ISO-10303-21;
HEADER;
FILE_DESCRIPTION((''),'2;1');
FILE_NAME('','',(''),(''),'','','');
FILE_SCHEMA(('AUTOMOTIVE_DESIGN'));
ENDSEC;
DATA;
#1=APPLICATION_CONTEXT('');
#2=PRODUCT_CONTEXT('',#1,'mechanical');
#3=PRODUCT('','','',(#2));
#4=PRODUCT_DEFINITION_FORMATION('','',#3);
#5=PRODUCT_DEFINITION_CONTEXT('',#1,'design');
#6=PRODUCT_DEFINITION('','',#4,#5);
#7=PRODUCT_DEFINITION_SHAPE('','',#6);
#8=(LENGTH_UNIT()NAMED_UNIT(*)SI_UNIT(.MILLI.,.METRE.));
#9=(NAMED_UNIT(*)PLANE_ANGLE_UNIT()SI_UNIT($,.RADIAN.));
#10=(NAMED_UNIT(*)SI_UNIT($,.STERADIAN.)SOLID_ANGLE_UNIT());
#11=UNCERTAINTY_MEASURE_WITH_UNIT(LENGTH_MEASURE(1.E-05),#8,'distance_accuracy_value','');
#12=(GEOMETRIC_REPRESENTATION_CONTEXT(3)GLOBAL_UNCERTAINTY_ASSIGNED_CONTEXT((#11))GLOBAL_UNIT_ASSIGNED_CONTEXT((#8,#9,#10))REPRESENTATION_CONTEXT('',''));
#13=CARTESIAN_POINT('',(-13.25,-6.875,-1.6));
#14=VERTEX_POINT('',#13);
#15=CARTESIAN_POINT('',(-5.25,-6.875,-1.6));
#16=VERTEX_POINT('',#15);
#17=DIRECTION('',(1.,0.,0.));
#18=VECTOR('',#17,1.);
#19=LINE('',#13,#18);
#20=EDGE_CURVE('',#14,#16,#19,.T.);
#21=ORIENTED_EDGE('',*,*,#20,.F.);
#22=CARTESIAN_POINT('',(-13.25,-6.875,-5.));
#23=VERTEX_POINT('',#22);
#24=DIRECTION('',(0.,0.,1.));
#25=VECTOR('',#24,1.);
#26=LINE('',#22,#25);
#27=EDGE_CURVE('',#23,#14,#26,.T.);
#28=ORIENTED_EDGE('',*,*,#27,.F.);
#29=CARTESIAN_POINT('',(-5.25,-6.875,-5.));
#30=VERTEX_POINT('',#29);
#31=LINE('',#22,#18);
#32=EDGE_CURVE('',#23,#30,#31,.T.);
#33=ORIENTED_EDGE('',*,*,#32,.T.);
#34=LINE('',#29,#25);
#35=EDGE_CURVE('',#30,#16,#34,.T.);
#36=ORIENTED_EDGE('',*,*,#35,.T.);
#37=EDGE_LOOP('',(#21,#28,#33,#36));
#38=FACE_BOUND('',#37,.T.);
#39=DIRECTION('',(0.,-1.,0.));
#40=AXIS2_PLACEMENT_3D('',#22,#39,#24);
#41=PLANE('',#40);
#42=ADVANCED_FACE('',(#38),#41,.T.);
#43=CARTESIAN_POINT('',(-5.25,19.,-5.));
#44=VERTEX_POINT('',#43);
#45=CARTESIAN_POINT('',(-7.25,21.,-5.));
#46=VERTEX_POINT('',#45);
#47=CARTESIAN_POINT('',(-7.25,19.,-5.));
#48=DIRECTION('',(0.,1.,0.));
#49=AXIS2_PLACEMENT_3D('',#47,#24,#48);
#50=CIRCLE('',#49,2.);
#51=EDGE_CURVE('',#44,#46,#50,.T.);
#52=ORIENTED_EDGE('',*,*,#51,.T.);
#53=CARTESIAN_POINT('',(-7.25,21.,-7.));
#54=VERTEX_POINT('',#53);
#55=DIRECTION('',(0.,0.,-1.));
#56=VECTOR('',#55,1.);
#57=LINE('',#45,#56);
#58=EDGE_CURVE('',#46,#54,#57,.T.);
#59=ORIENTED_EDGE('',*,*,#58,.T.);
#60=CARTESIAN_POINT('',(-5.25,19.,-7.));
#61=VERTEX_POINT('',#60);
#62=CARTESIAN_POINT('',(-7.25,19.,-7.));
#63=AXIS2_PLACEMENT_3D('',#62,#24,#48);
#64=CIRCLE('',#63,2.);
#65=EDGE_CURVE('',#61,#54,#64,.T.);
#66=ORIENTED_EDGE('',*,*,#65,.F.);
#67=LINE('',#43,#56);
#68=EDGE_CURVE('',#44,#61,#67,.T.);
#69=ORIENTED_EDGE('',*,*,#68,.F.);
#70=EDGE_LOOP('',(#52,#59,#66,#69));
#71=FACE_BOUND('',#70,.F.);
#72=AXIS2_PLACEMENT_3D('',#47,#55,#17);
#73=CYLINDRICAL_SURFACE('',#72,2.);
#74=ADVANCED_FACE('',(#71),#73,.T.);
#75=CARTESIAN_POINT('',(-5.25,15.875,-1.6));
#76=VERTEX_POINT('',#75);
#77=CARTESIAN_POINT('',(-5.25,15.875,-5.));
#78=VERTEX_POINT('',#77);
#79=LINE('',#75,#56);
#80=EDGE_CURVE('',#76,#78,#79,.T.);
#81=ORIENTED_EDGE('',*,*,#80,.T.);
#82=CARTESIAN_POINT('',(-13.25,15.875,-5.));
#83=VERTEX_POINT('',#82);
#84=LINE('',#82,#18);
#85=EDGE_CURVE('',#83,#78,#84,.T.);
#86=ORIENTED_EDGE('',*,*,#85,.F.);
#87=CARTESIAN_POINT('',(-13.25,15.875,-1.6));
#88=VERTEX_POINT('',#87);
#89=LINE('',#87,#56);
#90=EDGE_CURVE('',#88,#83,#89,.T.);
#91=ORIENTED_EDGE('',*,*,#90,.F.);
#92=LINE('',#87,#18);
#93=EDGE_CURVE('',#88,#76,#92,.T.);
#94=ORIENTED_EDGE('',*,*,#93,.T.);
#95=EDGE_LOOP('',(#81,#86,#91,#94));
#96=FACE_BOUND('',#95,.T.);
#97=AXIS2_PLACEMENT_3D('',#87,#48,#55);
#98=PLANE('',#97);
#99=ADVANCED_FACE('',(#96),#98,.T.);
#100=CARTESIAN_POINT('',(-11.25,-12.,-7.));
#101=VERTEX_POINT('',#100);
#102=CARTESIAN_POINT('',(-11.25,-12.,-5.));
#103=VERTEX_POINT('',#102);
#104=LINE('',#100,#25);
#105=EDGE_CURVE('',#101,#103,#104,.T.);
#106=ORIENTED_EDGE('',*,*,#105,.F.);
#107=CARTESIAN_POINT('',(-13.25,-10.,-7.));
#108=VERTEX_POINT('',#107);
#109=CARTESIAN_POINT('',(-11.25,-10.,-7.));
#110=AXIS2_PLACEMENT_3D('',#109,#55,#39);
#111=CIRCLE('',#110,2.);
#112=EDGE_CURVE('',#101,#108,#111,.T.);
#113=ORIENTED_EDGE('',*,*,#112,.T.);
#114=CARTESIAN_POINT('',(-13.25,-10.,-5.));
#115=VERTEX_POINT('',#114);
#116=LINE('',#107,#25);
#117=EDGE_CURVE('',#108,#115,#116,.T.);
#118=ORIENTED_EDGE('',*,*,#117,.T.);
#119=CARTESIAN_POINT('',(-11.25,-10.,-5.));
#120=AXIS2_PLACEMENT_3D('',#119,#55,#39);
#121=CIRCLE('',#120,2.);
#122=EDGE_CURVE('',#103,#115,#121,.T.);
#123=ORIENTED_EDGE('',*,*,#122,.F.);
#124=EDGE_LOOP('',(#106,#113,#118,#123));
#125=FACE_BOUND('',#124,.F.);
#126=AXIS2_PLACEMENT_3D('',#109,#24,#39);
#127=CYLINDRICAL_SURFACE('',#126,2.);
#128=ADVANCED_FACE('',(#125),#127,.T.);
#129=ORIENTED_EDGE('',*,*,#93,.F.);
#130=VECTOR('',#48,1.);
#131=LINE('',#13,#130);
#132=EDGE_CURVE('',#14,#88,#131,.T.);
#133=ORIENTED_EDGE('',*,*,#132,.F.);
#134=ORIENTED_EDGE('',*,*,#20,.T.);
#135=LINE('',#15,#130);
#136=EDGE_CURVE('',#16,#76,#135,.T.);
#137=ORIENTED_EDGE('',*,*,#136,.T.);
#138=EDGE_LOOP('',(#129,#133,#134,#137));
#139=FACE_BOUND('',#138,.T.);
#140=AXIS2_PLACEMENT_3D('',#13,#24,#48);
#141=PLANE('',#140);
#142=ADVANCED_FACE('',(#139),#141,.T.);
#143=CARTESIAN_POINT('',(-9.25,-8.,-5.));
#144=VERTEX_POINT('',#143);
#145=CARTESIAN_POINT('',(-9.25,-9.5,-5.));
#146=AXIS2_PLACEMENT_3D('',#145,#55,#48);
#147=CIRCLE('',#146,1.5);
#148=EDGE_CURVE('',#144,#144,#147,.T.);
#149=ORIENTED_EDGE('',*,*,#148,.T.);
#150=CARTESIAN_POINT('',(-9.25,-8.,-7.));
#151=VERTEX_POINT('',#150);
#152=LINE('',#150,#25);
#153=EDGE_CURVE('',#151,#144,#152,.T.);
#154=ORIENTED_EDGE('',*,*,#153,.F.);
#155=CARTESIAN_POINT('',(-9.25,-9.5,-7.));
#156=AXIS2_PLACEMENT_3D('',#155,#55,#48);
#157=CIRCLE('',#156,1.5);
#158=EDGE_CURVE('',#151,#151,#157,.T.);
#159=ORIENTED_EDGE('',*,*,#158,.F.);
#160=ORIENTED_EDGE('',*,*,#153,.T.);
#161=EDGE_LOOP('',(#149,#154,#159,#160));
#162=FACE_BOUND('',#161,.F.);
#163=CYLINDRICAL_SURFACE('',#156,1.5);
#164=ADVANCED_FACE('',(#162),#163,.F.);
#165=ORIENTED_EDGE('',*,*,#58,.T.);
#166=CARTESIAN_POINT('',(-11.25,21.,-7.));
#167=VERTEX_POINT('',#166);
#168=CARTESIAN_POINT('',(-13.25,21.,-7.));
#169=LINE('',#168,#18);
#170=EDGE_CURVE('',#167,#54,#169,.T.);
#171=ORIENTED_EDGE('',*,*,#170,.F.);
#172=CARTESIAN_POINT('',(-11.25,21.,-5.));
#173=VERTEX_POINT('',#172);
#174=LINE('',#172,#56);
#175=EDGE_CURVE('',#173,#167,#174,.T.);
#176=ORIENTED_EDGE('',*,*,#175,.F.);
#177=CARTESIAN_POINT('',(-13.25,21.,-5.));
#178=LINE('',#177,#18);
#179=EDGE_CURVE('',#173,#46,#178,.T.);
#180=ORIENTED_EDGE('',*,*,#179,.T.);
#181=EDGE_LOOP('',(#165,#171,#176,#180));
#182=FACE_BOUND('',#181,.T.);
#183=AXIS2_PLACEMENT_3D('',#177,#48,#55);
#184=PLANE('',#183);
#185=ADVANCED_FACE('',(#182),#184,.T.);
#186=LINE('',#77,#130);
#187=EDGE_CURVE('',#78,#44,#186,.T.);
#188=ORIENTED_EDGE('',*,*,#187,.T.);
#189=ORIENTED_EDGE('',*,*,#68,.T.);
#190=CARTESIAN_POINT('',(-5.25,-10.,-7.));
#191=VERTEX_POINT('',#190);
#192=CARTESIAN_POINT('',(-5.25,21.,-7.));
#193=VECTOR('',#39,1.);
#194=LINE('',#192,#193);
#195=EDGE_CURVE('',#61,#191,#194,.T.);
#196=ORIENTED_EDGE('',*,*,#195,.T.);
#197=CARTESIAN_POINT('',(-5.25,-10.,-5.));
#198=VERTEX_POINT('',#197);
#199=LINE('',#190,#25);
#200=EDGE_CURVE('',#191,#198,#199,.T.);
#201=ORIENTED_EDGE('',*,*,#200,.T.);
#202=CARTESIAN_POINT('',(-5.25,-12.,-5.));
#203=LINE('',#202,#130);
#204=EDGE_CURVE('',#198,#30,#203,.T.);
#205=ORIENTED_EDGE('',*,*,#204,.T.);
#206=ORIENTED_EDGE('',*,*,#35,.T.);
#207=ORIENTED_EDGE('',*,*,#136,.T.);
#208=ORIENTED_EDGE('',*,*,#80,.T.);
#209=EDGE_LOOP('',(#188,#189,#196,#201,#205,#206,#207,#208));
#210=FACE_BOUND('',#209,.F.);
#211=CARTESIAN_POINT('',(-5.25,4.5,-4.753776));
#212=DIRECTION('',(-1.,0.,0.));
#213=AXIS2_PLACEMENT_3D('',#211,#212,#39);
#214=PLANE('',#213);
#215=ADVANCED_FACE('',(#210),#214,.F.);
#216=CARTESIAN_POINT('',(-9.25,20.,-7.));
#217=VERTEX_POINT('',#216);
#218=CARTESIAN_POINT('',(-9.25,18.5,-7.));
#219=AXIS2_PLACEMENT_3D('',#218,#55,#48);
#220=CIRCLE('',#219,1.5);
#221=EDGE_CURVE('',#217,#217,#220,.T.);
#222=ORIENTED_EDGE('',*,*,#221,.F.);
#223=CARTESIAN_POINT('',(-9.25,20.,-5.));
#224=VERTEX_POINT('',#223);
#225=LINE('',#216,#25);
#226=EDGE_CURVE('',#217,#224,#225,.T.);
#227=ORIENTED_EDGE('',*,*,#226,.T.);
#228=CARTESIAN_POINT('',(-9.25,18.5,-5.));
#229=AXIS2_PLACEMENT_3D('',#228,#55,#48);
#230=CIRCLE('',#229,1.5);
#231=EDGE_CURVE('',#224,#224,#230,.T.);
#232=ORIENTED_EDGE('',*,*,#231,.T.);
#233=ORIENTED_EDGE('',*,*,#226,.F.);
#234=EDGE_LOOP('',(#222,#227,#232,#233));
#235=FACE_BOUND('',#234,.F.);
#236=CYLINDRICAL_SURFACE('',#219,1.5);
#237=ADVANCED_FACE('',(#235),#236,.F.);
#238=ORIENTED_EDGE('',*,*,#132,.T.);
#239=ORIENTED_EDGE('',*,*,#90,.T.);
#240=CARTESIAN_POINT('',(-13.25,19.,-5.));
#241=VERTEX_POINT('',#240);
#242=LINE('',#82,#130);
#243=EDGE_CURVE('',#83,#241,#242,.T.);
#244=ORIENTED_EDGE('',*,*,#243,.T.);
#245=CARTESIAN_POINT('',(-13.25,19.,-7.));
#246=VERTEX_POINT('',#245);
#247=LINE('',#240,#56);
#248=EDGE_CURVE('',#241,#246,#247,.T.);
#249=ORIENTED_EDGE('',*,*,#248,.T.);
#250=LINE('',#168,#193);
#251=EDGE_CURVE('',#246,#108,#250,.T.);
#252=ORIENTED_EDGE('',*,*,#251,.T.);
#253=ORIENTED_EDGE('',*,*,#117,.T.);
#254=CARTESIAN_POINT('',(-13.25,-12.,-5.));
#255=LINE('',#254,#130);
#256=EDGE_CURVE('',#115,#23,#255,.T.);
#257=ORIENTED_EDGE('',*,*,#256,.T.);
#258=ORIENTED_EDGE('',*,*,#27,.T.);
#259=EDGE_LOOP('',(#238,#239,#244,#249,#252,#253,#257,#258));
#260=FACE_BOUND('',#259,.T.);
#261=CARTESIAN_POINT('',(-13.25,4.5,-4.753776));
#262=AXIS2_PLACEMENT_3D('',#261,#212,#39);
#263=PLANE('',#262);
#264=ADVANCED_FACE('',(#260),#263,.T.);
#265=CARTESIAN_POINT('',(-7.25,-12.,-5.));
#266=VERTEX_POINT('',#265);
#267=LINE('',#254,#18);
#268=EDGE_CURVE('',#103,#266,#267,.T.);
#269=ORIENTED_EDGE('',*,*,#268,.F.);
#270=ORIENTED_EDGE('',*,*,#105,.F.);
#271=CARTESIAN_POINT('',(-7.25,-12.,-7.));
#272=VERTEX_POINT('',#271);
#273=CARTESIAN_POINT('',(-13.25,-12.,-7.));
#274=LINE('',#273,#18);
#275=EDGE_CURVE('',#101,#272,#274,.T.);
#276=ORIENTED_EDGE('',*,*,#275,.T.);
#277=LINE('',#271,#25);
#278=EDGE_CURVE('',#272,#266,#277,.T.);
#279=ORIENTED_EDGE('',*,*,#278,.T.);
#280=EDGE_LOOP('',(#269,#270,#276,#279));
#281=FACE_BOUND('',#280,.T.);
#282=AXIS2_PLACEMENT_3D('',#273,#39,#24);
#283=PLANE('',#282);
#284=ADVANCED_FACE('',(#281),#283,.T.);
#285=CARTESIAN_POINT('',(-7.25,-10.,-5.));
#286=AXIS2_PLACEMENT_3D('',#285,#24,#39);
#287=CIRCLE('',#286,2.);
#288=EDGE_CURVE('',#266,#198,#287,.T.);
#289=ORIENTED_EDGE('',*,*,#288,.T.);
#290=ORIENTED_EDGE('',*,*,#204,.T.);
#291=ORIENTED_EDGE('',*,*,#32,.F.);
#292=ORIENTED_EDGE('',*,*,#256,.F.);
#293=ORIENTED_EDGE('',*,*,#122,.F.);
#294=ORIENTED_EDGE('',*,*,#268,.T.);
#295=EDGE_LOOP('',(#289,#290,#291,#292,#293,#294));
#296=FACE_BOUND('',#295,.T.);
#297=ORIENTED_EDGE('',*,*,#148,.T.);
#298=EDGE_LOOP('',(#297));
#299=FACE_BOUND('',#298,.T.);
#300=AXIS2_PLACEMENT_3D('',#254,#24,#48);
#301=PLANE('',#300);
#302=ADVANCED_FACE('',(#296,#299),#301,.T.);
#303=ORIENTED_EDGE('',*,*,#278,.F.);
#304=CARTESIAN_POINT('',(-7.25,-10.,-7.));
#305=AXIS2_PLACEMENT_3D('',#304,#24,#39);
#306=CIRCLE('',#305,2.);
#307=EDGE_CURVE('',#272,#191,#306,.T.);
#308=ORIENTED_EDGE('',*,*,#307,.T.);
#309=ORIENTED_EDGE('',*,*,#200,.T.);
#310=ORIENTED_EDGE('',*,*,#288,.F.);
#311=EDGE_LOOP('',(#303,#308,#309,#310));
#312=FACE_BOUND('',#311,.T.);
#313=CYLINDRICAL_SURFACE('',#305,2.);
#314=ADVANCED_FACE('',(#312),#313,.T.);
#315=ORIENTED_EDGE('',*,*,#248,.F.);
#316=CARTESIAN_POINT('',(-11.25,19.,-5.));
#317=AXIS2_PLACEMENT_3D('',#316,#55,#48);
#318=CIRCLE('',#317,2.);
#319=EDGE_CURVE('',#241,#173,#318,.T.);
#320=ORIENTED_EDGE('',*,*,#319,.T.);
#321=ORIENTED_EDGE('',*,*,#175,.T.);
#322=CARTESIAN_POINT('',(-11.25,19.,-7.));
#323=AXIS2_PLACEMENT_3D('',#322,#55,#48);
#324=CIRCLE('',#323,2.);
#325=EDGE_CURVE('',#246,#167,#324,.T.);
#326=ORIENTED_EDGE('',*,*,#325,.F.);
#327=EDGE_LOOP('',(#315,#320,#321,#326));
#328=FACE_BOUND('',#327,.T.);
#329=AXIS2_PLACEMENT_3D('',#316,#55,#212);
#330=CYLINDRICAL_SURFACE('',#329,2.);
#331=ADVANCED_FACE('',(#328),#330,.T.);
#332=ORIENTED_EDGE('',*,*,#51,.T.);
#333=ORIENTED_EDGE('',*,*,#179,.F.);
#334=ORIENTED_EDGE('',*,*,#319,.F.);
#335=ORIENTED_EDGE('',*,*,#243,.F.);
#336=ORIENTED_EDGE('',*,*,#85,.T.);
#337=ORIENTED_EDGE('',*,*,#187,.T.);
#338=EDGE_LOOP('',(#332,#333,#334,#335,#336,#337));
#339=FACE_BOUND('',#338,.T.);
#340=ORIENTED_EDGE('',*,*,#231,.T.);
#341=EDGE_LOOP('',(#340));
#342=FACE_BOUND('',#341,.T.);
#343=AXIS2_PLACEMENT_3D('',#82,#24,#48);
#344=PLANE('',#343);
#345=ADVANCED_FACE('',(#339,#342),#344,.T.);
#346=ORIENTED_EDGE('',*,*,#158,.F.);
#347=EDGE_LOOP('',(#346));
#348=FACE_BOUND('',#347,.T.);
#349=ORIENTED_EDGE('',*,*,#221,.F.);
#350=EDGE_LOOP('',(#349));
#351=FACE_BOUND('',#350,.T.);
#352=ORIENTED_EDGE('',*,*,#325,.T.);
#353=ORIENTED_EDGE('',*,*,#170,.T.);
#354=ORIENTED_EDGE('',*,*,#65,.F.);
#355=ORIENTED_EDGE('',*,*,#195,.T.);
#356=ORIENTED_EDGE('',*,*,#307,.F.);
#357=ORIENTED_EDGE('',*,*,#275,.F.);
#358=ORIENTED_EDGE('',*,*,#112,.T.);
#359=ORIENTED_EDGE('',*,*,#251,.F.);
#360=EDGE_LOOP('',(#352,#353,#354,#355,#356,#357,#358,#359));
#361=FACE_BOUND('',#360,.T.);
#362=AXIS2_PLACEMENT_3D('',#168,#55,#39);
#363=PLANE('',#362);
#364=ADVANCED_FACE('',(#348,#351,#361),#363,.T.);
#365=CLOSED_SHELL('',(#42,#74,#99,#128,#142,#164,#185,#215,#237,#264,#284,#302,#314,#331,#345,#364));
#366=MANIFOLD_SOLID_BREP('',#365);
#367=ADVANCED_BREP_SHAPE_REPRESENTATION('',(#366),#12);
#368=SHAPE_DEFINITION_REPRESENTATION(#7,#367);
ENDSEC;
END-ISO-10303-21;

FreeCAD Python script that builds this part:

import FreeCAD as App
import Part
import Sketcher

V = App.Vector


def edges_at(feature, points):
    """Names of the edges that pass closest to the given points."""
    edges = feature.Shape.Edges
    near = lambda p: min(range(len(edges)), key=lambda i: edges[i].distToShape(Part.Vertex(*p))[0])
    return sorted({f"Edge{near(p) + 1}" for p in points})

doc = App.newDocument("Part")
params = doc.addObject("Spreadsheet::Sheet", "Params")
for row, (alias, value) in enumerate([
    ("sketch1_width", "33 mm"),
    ("sketch1_height", "2 mm"),
    ("sketch1_height2", "3.4 mm"),
    ("sketch1_width2", "22.75 mm"),
    ("pad1_length", "8 mm"),
    ("sketch2_diameter", "3 mm"),
    ("pocket1_length", "5 mm"),
    ("fillet_radius", "2 mm"),
], start=1):
    params.set(f"A{row}", alias)
    params.set(f"B{row}", "=" + value)
    params.setAlias(f"B{row}", alias)

body = doc.addObject("PartDesign::Body", "Body")

# Sketch on YZ plane
sketch1 = doc.addObject("Sketcher::SketchObject", "Sketch")
body.addObject(sketch1)
sketch1.AttachmentSupport = (doc.YZ_Plane, [""])
sketch1.MapMode = "FlatFace"
sketch1.addGeometry(Part.LineSegment(V(-11.9, -5, 0), V(-17, -5, 0)), False)
sketch1.addGeometry(Part.LineSegment(V(-17, -5, 0), V(-17, -7, 0)), False)
sketch1.addGeometry(Part.LineSegment(V(-17, -7, 0), V(16, -7, 0)), False)
sketch1.addGeometry(Part.LineSegment(V(16, -7, 0), V(16, -5, 0)), False)
sketch1.addGeometry(Part.LineSegment(V(16, -5, 0), V(10.9, -5, 0)), False)
sketch1.addGeometry(Part.LineSegment(V(10.9, -5, 0), V(10.9, -1.6, 0)), False)
sketch1.addGeometry(Part.LineSegment(V(10.9, -1.6, 0), V(-11.9, -1.6, 0)), False)
sketch1.addGeometry(Part.LineSegment(V(-11.9, -1.6, 0), V(-11.9, -5, 0)), False)
sketch1.addConstraint(Sketcher.Constraint("Coincident", 0, 2, 1, 1))
sketch1.addConstraint(Sketcher.Constraint("Coincident", 1, 2, 2, 1))
sketch1.addConstraint(Sketcher.Constraint("Coincident", 2, 2, 3, 1))
sketch1.addConstraint(Sketcher.Constraint("Coincident", 3, 2, 4, 1))
sketch1.addConstraint(Sketcher.Constraint("Coincident", 4, 2, 5, 1))
sketch1.addConstraint(Sketcher.Constraint("Coincident", 5, 2, 6, 1))
sketch1.addConstraint(Sketcher.Constraint("Coincident", 6, 2, 7, 1))
sketch1.addConstraint(Sketcher.Constraint("Coincident", 7, 2, 0, 1))
sketch1.addConstraint(Sketcher.Constraint("Horizontal", 0))
sketch1.addConstraint(Sketcher.Constraint("Vertical", 1))
sketch1.addConstraint(Sketcher.Constraint("Horizontal", 2))
sketch1.addConstraint(Sketcher.Constraint("Vertical", 3))
sketch1.addConstraint(Sketcher.Constraint("Horizontal", 4))
sketch1.addConstraint(Sketcher.Constraint("Vertical", 5))
sketch1.addConstraint(Sketcher.Constraint("Horizontal", 6))
sketch1.addConstraint(Sketcher.Constraint("Vertical", 7))
sketch1.addConstraint(Sketcher.Constraint("Horizontal", 0, 2, 3, 2))
sketch1.addConstraint(Sketcher.Constraint("Equal", 0, 4))
sketch1.addConstraint(Sketcher.Constraint("DistanceX", 2, 1, 2, 2, 33.0))
sketch1.addConstraint(Sketcher.Constraint("DistanceY", 1, 2, 1, 1, 2.0))
sketch1.addConstraint(Sketcher.Constraint("DistanceY", 5, 1, 5, 2, 3.4))
sketch1.addConstraint(Sketcher.Constraint("DistanceX", 0, 2, -1, 1, 17.0))
sketch1.addConstraint(Sketcher.Constraint("DistanceY", 0, 2, -1, 1, 5.0))
sketch1.addConstraint(Sketcher.Constraint("DistanceX", 6, 2, 6, 1, 22.75))
sketch1.setExpression("Constraints[18]", "Params.sketch1_width")
sketch1.setExpression("Constraints[19]", "Params.sketch1_height")
sketch1.setExpression("Constraints[20]", "Params.sketch1_height2")
sketch1.setExpression("Constraints[23]", "Params.sketch1_width2")
pad1 = doc.addObject("PartDesign::Pad", "Pad")
body.addObject(pad1)
pad1.Profile = sketch1
pad1.setExpression("Length", "Params.pad1_length")

# Sketch on XY plane
sketch2 = doc.addObject("Sketcher::SketchObject", "Sketch001")
body.addObject(sketch2)
sketch2.AttachmentSupport = (doc.XY_Plane, [""])
sketch2.MapMode = "FlatFace"
sketch2.AttachmentOffset = App.Placement(V(0, 0, -7), App.Rotation())
sketch2.addGeometry(Part.Circle(V(4, -14.5, 0), V(0, 0, 1), 1.5), False)
sketch2.addGeometry(Part.Circle(V(4, 13.5, 0), V(0, 0, 1), 1.5), False)
sketch2.addConstraint(Sketcher.Constraint("Equal", 0, 1))
sketch2.addConstraint(Sketcher.Constraint("Vertical", 0, 3, 1, 3))
sketch2.addConstraint(Sketcher.Constraint("Diameter", 0, 3.0))
sketch2.addConstraint(Sketcher.Constraint("DistanceX", -1, 1, 0, 3, 4.0))
sketch2.addConstraint(Sketcher.Constraint("DistanceY", 0, 3, 1, 3, 28.0))
sketch2.addConstraint(Sketcher.Constraint("DistanceY", 0, 3, -1, 1, 14.5))
sketch2.setExpression("Constraints[2]", "Params.sketch2_diameter")
pocket1 = doc.addObject("PartDesign::Pocket", "Pocket")
body.addObject(pocket1)
pocket1.Profile = sketch2
pocket1.setExpression("Length", "Params.pocket1_length")
pocket1.Reversed = True
doc.recompute()

fillet = doc.addObject("PartDesign::Fillet", "Fillet")
body.addObject(fillet)
fillet.Base = (pocket1, edges_at(pocket1, [
    (8, -17, -6),
    (0, -17, -6),
    (8, 16, -6),
    (0, 16, -6),
]))
fillet.setExpression("Radius", "Params.fillet_radius")
body2 = doc.addObject("PartDesign::Body", "Body001")
doc.recompute()

body.Placement = App.Placement(V(-13.25, 5, 0), App.Rotation(V(0, 0, 1), 0))
boolean = doc.addObject("PartDesign::Boolean", "Boolean")
body2.addObject(boolean)
boolean.Type = "Fuse"
boolean.addObjects([body])

doc.recompute()
